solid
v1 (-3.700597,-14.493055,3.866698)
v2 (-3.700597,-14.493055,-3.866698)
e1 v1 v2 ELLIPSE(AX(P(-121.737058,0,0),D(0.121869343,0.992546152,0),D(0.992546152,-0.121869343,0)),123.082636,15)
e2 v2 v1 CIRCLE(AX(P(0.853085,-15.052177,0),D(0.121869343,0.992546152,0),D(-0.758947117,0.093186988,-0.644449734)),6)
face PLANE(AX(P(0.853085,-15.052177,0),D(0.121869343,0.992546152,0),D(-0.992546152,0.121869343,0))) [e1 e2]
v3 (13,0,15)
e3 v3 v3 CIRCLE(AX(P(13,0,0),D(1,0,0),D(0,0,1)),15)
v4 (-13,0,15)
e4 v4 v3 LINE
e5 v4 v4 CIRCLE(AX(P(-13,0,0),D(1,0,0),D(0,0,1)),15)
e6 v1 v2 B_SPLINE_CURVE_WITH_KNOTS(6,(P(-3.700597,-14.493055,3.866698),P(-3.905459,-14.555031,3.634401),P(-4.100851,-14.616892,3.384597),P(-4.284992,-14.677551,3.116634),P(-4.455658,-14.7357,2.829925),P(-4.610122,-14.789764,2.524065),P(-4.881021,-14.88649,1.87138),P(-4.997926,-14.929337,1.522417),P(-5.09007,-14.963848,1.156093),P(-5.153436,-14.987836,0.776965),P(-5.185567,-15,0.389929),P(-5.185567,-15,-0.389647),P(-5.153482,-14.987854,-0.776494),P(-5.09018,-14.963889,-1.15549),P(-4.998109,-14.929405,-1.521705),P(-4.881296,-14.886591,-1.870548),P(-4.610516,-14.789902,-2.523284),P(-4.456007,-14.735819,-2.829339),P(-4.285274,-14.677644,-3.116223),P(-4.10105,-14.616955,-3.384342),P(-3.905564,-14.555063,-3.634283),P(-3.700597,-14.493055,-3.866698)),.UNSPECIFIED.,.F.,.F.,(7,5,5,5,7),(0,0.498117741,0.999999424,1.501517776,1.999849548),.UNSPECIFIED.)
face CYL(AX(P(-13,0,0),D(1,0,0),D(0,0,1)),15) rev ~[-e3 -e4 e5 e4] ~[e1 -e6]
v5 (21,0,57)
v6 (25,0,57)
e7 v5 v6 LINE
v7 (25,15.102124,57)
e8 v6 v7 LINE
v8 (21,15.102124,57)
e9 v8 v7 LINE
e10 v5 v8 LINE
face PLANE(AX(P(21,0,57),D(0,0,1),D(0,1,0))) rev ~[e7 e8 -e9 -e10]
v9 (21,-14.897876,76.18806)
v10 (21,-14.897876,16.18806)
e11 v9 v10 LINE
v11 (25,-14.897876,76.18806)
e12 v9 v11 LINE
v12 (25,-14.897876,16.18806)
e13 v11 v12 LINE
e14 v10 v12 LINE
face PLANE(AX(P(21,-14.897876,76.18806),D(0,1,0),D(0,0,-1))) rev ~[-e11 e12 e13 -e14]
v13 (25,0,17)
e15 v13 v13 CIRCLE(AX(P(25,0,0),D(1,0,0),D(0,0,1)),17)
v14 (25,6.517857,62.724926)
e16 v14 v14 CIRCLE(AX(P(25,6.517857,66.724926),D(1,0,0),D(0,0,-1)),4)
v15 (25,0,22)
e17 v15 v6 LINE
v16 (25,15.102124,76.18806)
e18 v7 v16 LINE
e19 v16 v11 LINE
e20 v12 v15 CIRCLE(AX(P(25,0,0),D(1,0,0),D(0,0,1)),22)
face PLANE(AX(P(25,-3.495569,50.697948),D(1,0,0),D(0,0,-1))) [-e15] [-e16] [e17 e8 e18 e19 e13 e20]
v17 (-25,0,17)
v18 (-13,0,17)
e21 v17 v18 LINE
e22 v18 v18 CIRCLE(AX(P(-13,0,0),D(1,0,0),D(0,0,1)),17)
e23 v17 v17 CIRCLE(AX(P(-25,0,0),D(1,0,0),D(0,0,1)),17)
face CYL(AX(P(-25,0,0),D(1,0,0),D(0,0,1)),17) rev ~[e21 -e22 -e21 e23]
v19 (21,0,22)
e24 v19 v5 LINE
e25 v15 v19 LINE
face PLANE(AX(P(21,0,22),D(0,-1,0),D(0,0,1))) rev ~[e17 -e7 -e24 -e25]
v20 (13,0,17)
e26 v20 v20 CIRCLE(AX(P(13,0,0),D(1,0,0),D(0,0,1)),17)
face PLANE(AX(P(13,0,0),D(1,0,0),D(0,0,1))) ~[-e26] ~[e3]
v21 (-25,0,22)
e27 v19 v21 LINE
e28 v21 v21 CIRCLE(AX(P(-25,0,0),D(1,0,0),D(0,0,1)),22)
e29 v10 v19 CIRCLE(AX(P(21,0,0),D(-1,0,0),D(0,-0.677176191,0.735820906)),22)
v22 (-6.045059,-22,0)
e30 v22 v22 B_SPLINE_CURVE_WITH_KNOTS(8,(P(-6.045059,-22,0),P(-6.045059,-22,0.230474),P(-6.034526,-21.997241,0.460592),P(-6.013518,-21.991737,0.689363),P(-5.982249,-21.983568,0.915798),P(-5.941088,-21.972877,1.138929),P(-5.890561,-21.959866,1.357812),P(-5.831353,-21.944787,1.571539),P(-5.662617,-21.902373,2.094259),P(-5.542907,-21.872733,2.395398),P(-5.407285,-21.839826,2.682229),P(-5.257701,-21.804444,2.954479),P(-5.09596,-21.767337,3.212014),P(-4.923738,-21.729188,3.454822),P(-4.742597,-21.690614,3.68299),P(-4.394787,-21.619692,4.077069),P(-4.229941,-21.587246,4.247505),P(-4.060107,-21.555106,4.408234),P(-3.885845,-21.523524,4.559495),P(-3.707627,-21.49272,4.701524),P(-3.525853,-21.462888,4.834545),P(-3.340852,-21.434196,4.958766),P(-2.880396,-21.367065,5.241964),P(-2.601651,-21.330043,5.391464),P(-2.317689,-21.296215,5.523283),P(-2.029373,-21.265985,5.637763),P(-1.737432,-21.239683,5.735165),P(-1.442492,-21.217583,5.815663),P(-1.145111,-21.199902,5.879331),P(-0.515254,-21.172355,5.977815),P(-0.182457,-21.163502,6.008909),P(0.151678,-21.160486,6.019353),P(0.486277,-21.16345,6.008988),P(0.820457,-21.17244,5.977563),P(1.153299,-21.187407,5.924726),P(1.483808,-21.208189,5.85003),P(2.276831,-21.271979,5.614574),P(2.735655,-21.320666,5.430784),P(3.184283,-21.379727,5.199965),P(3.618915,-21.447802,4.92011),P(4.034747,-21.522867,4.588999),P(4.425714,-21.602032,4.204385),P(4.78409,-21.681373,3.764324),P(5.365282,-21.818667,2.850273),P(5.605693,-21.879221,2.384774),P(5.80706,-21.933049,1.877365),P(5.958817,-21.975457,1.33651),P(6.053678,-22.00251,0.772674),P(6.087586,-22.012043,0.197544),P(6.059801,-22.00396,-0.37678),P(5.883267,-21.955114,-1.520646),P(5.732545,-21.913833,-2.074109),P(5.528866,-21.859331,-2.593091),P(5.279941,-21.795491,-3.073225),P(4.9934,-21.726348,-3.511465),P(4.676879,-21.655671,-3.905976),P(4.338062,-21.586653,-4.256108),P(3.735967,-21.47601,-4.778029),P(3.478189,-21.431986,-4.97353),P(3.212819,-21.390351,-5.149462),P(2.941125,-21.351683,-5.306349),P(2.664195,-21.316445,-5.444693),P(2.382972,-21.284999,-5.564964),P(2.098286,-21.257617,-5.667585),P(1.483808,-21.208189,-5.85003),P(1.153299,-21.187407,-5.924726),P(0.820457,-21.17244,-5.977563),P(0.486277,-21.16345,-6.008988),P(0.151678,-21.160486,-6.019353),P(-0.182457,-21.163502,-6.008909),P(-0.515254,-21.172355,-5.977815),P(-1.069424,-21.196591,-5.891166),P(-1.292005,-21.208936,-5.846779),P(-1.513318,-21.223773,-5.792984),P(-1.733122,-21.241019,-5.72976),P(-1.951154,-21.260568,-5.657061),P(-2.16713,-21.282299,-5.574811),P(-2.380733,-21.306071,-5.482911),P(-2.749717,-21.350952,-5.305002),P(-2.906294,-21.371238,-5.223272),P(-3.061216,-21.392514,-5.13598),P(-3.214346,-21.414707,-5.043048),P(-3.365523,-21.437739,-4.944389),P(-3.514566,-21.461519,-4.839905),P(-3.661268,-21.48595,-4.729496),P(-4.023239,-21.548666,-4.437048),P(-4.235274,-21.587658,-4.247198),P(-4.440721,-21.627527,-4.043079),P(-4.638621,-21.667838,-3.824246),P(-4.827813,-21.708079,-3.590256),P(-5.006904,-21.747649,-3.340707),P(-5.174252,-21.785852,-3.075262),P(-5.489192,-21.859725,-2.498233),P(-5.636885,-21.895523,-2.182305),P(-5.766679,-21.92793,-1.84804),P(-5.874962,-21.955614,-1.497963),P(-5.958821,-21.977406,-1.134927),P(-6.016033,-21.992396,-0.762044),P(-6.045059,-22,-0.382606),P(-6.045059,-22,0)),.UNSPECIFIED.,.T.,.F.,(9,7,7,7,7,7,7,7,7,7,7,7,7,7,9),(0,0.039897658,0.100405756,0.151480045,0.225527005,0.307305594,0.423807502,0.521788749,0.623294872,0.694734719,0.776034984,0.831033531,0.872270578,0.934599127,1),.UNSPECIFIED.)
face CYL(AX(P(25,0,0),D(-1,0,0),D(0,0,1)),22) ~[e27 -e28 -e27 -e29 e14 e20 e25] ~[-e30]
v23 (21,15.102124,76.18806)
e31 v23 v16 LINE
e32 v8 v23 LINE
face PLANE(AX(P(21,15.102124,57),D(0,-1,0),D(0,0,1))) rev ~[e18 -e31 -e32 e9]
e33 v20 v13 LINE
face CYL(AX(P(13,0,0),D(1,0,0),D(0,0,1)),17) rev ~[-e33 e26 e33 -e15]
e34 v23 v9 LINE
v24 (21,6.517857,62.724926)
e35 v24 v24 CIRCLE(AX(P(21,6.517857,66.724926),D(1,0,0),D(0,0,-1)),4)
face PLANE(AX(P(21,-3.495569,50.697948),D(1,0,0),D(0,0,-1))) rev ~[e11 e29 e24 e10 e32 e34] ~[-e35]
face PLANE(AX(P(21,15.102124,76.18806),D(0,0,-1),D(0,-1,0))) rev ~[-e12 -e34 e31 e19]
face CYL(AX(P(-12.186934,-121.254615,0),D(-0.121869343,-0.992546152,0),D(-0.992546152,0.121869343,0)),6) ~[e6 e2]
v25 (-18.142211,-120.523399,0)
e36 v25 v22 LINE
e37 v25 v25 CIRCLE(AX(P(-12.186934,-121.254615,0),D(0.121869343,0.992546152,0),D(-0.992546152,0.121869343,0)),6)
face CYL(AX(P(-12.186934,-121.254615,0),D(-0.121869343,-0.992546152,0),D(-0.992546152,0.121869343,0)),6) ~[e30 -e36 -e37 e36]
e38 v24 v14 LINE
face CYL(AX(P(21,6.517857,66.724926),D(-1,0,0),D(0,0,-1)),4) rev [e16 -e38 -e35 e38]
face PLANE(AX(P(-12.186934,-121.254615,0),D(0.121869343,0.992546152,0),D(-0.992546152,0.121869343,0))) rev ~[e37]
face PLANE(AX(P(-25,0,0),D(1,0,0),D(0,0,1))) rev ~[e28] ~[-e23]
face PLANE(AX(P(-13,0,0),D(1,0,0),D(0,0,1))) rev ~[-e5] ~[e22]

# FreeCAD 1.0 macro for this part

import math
import FreeCAD as App
import Part
import Sketcher
from FreeCAD import Vector
Q = App.Units.Quantity


def add_polygon(sketch, points):
    """Adds a closed chain of lines whose ends are joined by coincident constraints."""
    first, n = sketch.GeometryCount, len(points)
    for a, b in zip(points, points[1:] + points[:1]):
        sketch.addGeometry(Part.LineSegment(App.Vector(*a, 0), App.Vector(*b, 0)), False)
    for i in range(n):
        sketch.addConstraint(Sketcher.Constraint("Coincident", first + i, 2, first + (i + 1) % n, 1))

doc = App.newDocument("Part")
body = doc.addObject("PartDesign::Body", "Body")

# Sketch on XY plane
sketch1 = body.newObject("Sketcher::SketchObject", "Sketch")
sketch1.AttachmentSupport = (doc.getObject("XY_Plane"), [""])
sketch1.MapMode = "FlatFace"
add_polygon(sketch1, [(-25, 22), (-25, 17), (-13, 17), (-13, 15), (13, 15), (13, 17), (25, 17), (25, 22)])  # lines 0-7
sketch1.addConstraint(Sketcher.Constraint("Vertical", 0))
sketch1.addConstraint(Sketcher.Constraint("Horizontal", 1))
sketch1.addConstraint(Sketcher.Constraint("Vertical", 2))
sketch1.addConstraint(Sketcher.Constraint("Horizontal", 3))
sketch1.addConstraint(Sketcher.Constraint("Vertical", 4))
sketch1.addConstraint(Sketcher.Constraint("Horizontal", 5))
sketch1.addConstraint(Sketcher.Constraint("Vertical", 6))
sketch1.addConstraint(Sketcher.Constraint("Horizontal", 7))
sketch1.addConstraint(Sketcher.Constraint("Symmetric", 1, 2, 4, 2, -2))
sketch1.addConstraint(Sketcher.Constraint("Equal", 1, 5))
sketch1.addConstraint(Sketcher.Constraint("DistanceX", 1, 1, 1, 2, Q("12 mm")))
sketch1.addConstraint(Sketcher.Constraint("DistanceX", 3, 1, 3, 2, Q("26 mm")))
sketch1.addConstraint(Sketcher.Constraint("DistanceY", 0, 2, 0, 1, Q("5 mm")))
sketch1.addConstraint(Sketcher.Constraint("DistanceY", 2, 2, 2, 1, Q("2 mm")))
sketch1.addConstraint(Sketcher.Constraint("DistanceY", -1, 1, 0, 2, Q("17 mm")))
revolution = body.newObject("PartDesign::Revolution", "Revolution")
revolution.Profile = sketch1
revolution.ReferenceAxis = (sketch1, ["H_Axis"])
revolution.Angle = 360

# Sketch on YZ plane
sketch2 = body.newObject("Sketcher::SketchObject", "Sketch001")
sketch2.AttachmentSupport = (doc.getObject("YZ_Plane"), [""])
sketch2.MapMode = "FlatFace"
sketch2.AttachmentOffset = App.Placement(Vector(0, 0, 21), App.Rotation())
sketch2.addGeometry(Part.LineSegment(Vector(0, 22, 0), Vector(0, 57, 0)), False)
sketch2.addGeometry(Part.LineSegment(Vector(0, 57, 0), Vector(15.1, 57, 0)), False)
sketch2.addGeometry(Part.LineSegment(Vector(15.1, 57, 0), Vector(15.1, 76.2, 0)), False)
sketch2.addGeometry(Part.LineSegment(Vector(15.1, 76.2, 0), Vector(-14.9, 76.2, 0)), False)
sketch2.addGeometry(Part.LineSegment(Vector(-14.9, 76.2, 0), Vector(-14.9, 16.2, 0)), False)
sketch2.addGeometry(Part.ArcOfCircle(Part.Circle(Vector(0, 0, 0), Vector(0, 0, 1), 22), math.radians(90), math.radians(133)), False)
sketch2.addGeometry(Part.Circle(Vector(6.5, 66.7, 0), Vector(0, 0, 1), 4), False)
sketch2.addConstraint(Sketcher.Constraint("Coincident", 0, 2, 1, 1))
sketch2.addConstraint(Sketcher.Constraint("Coincident", 1, 2, 2, 1))
sketch2.addConstraint(Sketcher.Constraint("Coincident", 2, 2, 3, 1))
sketch2.addConstraint(Sketcher.Constraint("Coincident", 3, 2, 4, 1))
sketch2.addConstraint(Sketcher.Constraint("Coincident", 4, 2, 5, 2))
sketch2.addConstraint(Sketcher.Constraint("Coincident", 5, 1, 0, 1))
sketch2.addConstraint(Sketcher.Constraint("Vertical", 0))
sketch2.addConstraint(Sketcher.Constraint("Horizontal", 1))
sketch2.addConstraint(Sketcher.Constraint("Vertical", 2))
sketch2.addConstraint(Sketcher.Constraint("Horizontal", 3))
sketch2.addConstraint(Sketcher.Constraint("Vertical", 4))
sketch2.addConstraint(Sketcher.Constraint("Coincident", 5, 3, -1, 1))
sketch2.addConstraint(Sketcher.Constraint("PointOnObject", 0, 2, -2))
sketch2.addConstraint(Sketcher.Constraint("Diameter", 6, Q("8 mm")))
sketch2.addConstraint(Sketcher.Constraint("Radius", 5, Q("22 mm")))
sketch2.addConstraint(Sketcher.Constraint("DistanceX", 3, 2, 3, 1, Q("30 mm")))
sketch2.addConstraint(Sketcher.Constraint("DistanceY", 0, 1, 0, 2, Q("35 mm")))
sketch2.addConstraint(Sketcher.Constraint("DistanceY", 4, 2, 4, 1, Q("60 mm")))
sketch2.addConstraint(Sketcher.Constraint("DistanceY", 2, 1, 2, 2, Q("19.18806 mm")))
sketch2.addConstraint(Sketcher.Constraint("DistanceX", -1, 1, 6, 3, Q("6.517857 mm")))
sketch2.addConstraint(Sketcher.Constraint("DistanceY", -1, 1, 6, 3, Q("66.724926 mm")))
pad1 = body.newObject("PartDesign::Pad", "Pad")
pad1.Profile = sketch2
pad1.Length = 4

# Sketch on an angled plane
sketch3 = body.newObject("Sketcher::SketchObject", "Sketch002")
sketch3.Placement = App.Placement(Vector(-2.661141, -21.673253, 0), App.Rotation(Vector(0, 0, -1), Vector(-0.992546152, 0.121869343, 0), Vector(0.121869343, 0.992546152, 0), "ZXY"))
sketch3.addGeometry(Part.Circle(Vector(0, -3, 0), Vector(0, 0, 1), 6), False)
sketch3.addConstraint(Sketcher.Constraint("PointOnObject", 0, 3, -2))
sketch3.addConstraint(Sketcher.Constraint("Diameter", 0, Q("12 mm")))
sketch3.addConstraint(Sketcher.Constraint("DistanceY", 0, 3, -1, 1, Q("2.681126 mm")))
pad2 = body.newObject("PartDesign::Pad", "Pad001")
pad2.Profile = sketch3
pad2.Type = "TwoLengths"
pad2.Length = 7
pad2.Length2 = 100

doc.recompute()
